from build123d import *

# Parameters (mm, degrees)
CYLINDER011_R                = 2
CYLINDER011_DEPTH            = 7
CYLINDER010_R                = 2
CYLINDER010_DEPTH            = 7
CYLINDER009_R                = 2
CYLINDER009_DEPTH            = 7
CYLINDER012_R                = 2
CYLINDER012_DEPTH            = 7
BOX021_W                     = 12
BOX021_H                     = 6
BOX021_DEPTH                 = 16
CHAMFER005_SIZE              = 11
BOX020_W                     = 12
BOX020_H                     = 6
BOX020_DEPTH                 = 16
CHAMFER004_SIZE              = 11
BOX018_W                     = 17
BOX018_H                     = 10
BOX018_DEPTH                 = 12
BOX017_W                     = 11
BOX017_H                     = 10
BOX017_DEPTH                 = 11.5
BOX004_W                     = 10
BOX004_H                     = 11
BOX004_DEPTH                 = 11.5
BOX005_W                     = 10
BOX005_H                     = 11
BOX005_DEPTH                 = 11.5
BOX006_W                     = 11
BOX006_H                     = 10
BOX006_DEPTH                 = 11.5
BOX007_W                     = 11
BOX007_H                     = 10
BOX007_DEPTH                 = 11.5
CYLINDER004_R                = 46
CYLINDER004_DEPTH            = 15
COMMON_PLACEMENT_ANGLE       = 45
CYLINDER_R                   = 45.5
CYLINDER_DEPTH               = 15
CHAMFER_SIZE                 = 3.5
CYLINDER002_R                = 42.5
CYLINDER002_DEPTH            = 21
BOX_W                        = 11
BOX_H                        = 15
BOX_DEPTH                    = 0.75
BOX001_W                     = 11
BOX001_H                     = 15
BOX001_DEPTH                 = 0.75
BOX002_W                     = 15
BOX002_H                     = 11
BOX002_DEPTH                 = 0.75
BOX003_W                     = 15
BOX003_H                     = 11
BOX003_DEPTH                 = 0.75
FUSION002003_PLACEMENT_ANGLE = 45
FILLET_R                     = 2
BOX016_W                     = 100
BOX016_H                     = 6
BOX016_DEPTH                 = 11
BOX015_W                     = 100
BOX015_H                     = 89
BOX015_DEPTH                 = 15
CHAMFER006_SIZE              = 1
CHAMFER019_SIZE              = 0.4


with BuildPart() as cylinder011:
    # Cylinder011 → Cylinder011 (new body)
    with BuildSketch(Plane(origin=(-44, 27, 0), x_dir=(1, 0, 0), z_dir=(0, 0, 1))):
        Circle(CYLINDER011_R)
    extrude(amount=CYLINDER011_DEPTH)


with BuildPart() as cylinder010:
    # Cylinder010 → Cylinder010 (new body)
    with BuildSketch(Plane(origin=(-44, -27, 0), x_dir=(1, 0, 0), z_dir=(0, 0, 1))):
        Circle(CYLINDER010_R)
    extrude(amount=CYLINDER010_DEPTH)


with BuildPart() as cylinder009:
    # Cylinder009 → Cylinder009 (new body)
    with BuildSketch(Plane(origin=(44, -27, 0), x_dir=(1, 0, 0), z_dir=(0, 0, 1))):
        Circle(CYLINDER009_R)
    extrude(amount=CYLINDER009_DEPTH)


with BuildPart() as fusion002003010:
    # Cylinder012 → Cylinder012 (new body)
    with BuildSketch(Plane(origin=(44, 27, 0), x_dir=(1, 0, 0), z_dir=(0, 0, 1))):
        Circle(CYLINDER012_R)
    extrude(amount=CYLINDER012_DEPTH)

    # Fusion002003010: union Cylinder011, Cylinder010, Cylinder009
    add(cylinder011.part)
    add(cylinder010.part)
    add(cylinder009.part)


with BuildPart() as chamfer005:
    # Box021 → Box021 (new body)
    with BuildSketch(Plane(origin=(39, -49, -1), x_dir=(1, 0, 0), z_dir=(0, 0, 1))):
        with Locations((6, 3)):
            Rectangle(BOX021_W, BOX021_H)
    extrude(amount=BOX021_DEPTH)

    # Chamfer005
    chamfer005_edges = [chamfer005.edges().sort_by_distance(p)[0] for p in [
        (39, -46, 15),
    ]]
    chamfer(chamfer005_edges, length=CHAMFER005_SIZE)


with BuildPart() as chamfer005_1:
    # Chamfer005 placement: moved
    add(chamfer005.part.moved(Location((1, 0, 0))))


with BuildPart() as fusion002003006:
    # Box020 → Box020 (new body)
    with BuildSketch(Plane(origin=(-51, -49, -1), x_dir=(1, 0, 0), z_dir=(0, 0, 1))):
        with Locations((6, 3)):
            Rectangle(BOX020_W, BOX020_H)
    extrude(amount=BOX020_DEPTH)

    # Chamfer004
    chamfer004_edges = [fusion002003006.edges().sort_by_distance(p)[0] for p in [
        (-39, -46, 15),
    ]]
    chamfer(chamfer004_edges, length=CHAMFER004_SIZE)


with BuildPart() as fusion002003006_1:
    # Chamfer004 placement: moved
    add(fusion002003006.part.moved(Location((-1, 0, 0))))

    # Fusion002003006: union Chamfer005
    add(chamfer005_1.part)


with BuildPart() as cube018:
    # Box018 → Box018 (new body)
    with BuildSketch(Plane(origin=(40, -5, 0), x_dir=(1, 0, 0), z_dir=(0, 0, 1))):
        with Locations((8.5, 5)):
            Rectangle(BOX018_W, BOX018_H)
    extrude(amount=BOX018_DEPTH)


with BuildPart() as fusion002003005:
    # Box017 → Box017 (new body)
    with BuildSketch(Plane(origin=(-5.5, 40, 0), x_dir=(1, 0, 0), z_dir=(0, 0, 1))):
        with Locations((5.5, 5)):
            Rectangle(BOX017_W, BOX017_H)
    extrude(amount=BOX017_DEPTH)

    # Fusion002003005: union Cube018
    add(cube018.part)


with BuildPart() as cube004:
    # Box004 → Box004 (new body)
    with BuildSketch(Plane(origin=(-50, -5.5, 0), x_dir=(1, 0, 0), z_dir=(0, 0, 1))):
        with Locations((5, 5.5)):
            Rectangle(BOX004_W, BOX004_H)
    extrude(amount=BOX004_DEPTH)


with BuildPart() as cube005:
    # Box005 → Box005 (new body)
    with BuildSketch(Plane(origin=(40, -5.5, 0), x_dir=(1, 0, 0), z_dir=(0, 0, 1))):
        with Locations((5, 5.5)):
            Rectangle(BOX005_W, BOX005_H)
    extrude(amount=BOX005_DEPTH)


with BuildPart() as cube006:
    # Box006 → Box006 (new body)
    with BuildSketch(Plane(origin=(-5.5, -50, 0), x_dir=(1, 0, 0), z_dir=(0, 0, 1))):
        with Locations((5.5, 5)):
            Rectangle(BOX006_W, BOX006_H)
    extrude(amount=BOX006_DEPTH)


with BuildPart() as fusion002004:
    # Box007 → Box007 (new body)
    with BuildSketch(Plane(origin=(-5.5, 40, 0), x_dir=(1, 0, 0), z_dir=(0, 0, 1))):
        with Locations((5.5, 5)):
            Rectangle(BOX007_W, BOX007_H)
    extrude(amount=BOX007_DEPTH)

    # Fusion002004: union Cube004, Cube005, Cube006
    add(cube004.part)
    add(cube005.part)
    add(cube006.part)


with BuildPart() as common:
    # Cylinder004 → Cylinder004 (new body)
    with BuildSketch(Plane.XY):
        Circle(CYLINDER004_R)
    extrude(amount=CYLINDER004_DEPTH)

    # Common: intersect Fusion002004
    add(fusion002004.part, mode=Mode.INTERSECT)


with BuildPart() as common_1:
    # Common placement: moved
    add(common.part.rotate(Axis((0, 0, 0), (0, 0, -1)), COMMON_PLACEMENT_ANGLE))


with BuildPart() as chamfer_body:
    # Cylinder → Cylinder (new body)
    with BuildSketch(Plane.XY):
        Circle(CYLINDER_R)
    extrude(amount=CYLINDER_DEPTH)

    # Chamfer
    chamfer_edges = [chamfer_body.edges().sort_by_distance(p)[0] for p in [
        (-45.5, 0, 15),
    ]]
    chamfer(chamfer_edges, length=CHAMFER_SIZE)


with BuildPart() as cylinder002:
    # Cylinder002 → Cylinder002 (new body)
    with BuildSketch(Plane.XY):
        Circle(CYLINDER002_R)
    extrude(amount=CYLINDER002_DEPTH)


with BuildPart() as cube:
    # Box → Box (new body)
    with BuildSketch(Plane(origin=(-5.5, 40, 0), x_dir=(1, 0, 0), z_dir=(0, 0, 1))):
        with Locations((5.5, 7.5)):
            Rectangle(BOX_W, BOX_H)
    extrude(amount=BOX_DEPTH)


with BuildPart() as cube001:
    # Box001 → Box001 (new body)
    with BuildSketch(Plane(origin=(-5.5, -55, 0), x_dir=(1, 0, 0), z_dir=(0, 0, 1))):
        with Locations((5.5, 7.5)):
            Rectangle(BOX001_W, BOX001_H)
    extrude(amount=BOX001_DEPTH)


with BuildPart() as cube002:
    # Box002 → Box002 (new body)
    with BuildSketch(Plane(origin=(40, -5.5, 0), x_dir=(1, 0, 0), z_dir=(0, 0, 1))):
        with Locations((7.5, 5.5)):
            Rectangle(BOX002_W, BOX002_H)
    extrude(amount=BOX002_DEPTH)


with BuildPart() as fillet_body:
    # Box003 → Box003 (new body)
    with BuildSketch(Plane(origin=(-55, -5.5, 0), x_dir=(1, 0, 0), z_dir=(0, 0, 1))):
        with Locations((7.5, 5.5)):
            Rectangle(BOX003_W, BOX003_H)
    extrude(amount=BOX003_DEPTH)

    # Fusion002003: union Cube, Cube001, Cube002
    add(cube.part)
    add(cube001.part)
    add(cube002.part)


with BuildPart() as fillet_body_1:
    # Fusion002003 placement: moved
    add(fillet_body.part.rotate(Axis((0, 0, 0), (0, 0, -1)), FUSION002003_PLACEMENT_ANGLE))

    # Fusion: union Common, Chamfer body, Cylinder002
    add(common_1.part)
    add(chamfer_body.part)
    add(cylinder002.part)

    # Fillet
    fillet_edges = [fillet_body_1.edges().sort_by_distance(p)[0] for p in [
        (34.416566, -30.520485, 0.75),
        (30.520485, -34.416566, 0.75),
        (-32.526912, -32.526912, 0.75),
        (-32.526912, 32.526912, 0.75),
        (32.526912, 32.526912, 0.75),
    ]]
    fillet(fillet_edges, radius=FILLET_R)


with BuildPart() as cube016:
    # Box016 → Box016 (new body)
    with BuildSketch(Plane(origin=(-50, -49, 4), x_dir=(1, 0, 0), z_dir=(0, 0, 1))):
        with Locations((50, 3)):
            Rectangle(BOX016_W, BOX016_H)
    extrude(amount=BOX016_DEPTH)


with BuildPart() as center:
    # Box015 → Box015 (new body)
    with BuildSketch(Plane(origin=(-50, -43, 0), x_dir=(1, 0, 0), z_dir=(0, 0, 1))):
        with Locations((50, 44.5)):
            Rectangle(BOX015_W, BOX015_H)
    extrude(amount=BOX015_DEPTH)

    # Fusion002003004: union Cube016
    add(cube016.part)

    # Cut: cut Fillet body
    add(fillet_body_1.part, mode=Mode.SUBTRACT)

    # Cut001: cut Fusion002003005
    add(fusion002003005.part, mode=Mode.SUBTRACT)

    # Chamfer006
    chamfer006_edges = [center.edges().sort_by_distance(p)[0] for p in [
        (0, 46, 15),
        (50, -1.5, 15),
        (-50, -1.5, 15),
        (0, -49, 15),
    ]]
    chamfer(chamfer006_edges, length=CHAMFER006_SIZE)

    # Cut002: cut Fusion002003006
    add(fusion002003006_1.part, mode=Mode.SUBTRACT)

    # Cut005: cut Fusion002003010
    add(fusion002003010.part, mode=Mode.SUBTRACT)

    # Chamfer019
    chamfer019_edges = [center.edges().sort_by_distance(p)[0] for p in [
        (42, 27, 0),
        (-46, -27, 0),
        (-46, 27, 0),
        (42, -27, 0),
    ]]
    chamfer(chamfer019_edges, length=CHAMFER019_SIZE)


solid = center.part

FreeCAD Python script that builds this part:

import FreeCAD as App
import Part
import Sketcher


def edges_at(feature, points):
    """Names of the edges that pass closest to the given points."""
    edges = feature.Shape.Edges
    near = lambda p: min(range(len(edges)), key=lambda i: edges[i].distToShape(Part.Vertex(*p))[0])
    return sorted({f"Edge{near(p) + 1}" for p in points})

doc = App.newDocument("Part")
body = doc.addObject("PartDesign::Body", "Body")

# Sketch on XY plane
sketch1 = body.newObject("Sketcher::SketchObject", "Sketch")
sketch1.AttachmentSupport = (doc.getObject("XY_Plane"), [""])
sketch1.MapMode = "FlatFace"
sketch1.addGeometry(Part.Circle(App.Vector(-44, 27, 0), App.Vector(0, 0, 1), 2), False)
sketch1.addConstraint(Sketcher.Constraint("Diameter", 0, 4.0))
sketch1.addConstraint(Sketcher.Constraint("DistanceX", 0, 3, -1, 1, 44.0))
sketch1.addConstraint(Sketcher.Constraint("DistanceY", -1, 1, 0, 3, 27.0))
pad1 = body.newObject("PartDesign::Pad", "Pad")
pad1.Profile = sketch1
pad1.Length = 7
body2 = doc.addObject("PartDesign::Body", "Body001")

# Sketch on XY plane
sketch2 = body2.newObject("Sketcher::SketchObject", "Sketch001")
sketch2.AttachmentSupport = (doc.getObject("XY_Plane001"), [""])
sketch2.MapMode = "FlatFace"
sketch2.addGeometry(Part.Circle(App.Vector(-44, -27, 0), App.Vector(0, 0, 1), 2), False)
sketch2.addConstraint(Sketcher.Constraint("Diameter", 0, 4.0))
sketch2.addConstraint(Sketcher.Constraint("DistanceX", 0, 3, -1, 1, 44.0))
sketch2.addConstraint(Sketcher.Constraint("DistanceY", 0, 3, -1, 1, 27.0))
pad2 = body2.newObject("PartDesign::Pad", "Pad001")
pad2.Profile = sketch2
pad2.Length = 7
body3 = doc.addObject("PartDesign::Body", "Body002")

# Sketch on XY plane
sketch3 = body3.newObject("Sketcher::SketchObject", "Sketch002")
sketch3.AttachmentSupport = (doc.getObject("XY_Plane002"), [""])
sketch3.MapMode = "FlatFace"
sketch3.addGeometry(Part.Circle(App.Vector(44, -27, 0), App.Vector(0, 0, 1), 2), False)
sketch3.addConstraint(Sketcher.Constraint("Diameter", 0, 4.0))
sketch3.addConstraint(Sketcher.Constraint("DistanceX", -1, 1, 0, 3, 44.0))
sketch3.addConstraint(Sketcher.Constraint("DistanceY", 0, 3, -1, 1, 27.0))
pad3 = body3.newObject("PartDesign::Pad", "Pad002")
pad3.Profile = sketch3
pad3.Length = 7
body4 = doc.addObject("PartDesign::Body", "Body003")
body4.AllowCompound = True

# Sketch on XY plane
sketch4 = body4.newObject("Sketcher::SketchObject", "Sketch003")
sketch4.AttachmentSupport = (doc.getObject("XY_Plane003"), [""])
sketch4.MapMode = "FlatFace"
sketch4.addGeometry(Part.Circle(App.Vector(44, 27, 0), App.Vector(0, 0, 1), 2), False)
sketch4.addConstraint(Sketcher.Constraint("Diameter", 0, 4.0))
sketch4.addConstraint(Sketcher.Constraint("DistanceX", -1, 1, 0, 3, 44.0))
sketch4.addConstraint(Sketcher.Constraint("DistanceY", -1, 1, 0, 3, 27.0))
pad4 = body4.newObject("PartDesign::Pad", "Pad003")
pad4.Profile = sketch4
pad4.Length = 7
doc.recompute()

boolean = body4.newObject("PartDesign::Boolean", "Boolean")
boolean.Type = "Fuse"
boolean.addObjects([body])
doc.recompute()

boolean2 = body4.newObject("PartDesign::Boolean", "Boolean001")
boolean2.Type = "Fuse"
boolean2.addObjects([body2])
doc.recompute()

boolean3 = body4.newObject("PartDesign::Boolean", "Boolean002")
boolean3.Type = "Fuse"
boolean3.addObjects([body3])
body5 = doc.addObject("PartDesign::Body", "Body004")

# Sketch on XY plane
sketch5 = body5.newObject("Sketcher::SketchObject", "Sketch004")
sketch5.AttachmentSupport = (doc.getObject("XY_Plane004"), [""])
sketch5.MapMode = "FlatFace"
sketch5.AttachmentOffset = App.Placement(App.Vector(0, 0, -1), App.Rotation())
sketch5.addGeometry(Part.LineSegment(App.Vector(39, -43, 0), App.Vector(39, -49, 0)), False)
sketch5.addGeometry(Part.LineSegment(App.Vector(39, -49, 0), App.Vector(51, -49, 0)), False)
sketch5.addGeometry(Part.LineSegment(App.Vector(51, -49, 0), App.Vector(51, -43, 0)), False)
sketch5.addGeometry(Part.LineSegment(App.Vector(51, -43, 0), App.Vector(39, -43, 0)), False)
sketch5.addConstraint(Sketcher.Constraint("Coincident", 0, 2, 1, 1))
sketch5.addConstraint(Sketcher.Constraint("Coincident", 1, 2, 2, 1))
sketch5.addConstraint(Sketcher.Constraint("Coincident", 2, 2, 3, 1))
sketch5.addConstraint(Sketcher.Constraint("Coincident", 3, 2, 0, 1))
sketch5.addConstraint(Sketcher.Constraint("Vertical", 0))
sketch5.addConstraint(Sketcher.Constraint("Horizontal", 1))
sketch5.addConstraint(Sketcher.Constraint("Vertical", 2))
sketch5.addConstraint(Sketcher.Constraint("Horizontal", 3))
sketch5.addConstraint(Sketcher.Constraint("DistanceX", 1, 1, 1, 2, 12.0))
sketch5.addConstraint(Sketcher.Constraint("DistanceY", 0, 2, 0, 1, 6.0))
sketch5.addConstraint(Sketcher.Constraint("DistanceX", -1, 1, 0, 2, 39.0))
sketch5.addConstraint(Sketcher.Constraint("DistanceY", 0, 2, -1, 1, 49.0))
pad5 = body5.newObject("PartDesign::Pad", "Pad004")
pad5.Profile = sketch5
pad5.Length = 16
doc.recompute()

chamfer = body5.newObject("PartDesign::Chamfer", "Chamfer")
chamfer.Base = (pad5, edges_at(pad5, [(39, -46, 15)]))
chamfer.Size = 11
body6 = doc.addObject("PartDesign::Body", "Body005")
doc.recompute()

body5.Placement = App.Placement(App.Vector(1, 0, 0), App.Rotation(App.Vector(0, 0, 1), 0))
boolean4 = body6.newObject("PartDesign::Boolean", "Boolean003")
boolean4.Type = "Fuse"
boolean4.addObjects([body5])
body7 = doc.addObject("PartDesign::Body", "Body006")

# Sketch on XY plane
sketch6 = body7.newObject("Sketcher::SketchObject", "Sketch005")
sketch6.AttachmentSupport = (doc.getObject("XY_Plane006"), [""])
sketch6.MapMode = "FlatFace"
sketch6.AttachmentOffset = App.Placement(App.Vector(0, 0, -1), App.Rotation())
sketch6.addGeometry(Part.LineSegment(App.Vector(-51, -43, 0), App.Vector(-51, -49, 0)), False)
sketch6.addGeometry(Part.LineSegment(App.Vector(-51, -49, 0), App.Vector(-39, -49, 0)), False)
sketch6.addGeometry(Part.LineSegment(App.Vector(-39, -49, 0), App.Vector(-39, -43, 0)), False)
sketch6.addGeometry(Part.LineSegment(App.Vector(-39, -43, 0), App.Vector(-51, -43, 0)), False)
sketch6.addConstraint(Sketcher.Constraint("Coincident", 0, 2, 1, 1))
sketch6.addConstraint(Sketcher.Constraint("Coincident", 1, 2, 2, 1))
sketch6.addConstraint(Sketcher.Constraint("Coincident", 2, 2, 3, 1))
sketch6.addConstraint(Sketcher.Constraint("Coincident", 3, 2, 0, 1))
sketch6.addConstraint(Sketcher.Constraint("Vertical", 0))
sketch6.addConstraint(Sketcher.Constraint("Horizontal", 1))
sketch6.addConstraint(Sketcher.Constraint("Vertical", 2))
sketch6.addConstraint(Sketcher.Constraint("Horizontal", 3))
sketch6.addConstraint(Sketcher.Constraint("DistanceX", 1, 1, 1, 2, 12.0))
sketch6.addConstraint(Sketcher.Constraint("DistanceY", 0, 2, 0, 1, 6.0))
sketch6.addConstraint(Sketcher.Constraint("DistanceX", 0, 2, -1, 1, 51.0))
sketch6.addConstraint(Sketcher.Constraint("DistanceY", 0, 2, -1, 1, 49.0))
pad6 = body7.newObject("PartDesign::Pad", "Pad005")
pad6.Profile = sketch6
pad6.Length = 16
doc.recompute()

chamfer2 = body7.newObject("PartDesign::Chamfer", "Chamfer001")
chamfer2.Base = (pad6, edges_at(pad6, [(-39, -46, 15)]))
chamfer2.Size = 11
body8 = doc.addObject("PartDesign::Body", "Body007")
body8.AllowCompound = True
doc.recompute()

body7.Placement = App.Placement(App.Vector(-1, 0, 0), App.Rotation(App.Vector(0, 0, 1), 0))
boolean5 = body8.newObject("PartDesign::Boolean", "Boolean004")
boolean5.Type = "Fuse"
boolean5.addObjects([body7])
doc.recompute()

boolean6 = body8.newObject("PartDesign::Boolean", "Boolean005")
boolean6.Type = "Fuse"
boolean6.addObjects([body6])
body9 = doc.addObject("PartDesign::Body", "Body008")

# Sketch on XY plane
sketch7 = body9.newObject("Sketcher::SketchObject", "Sketch006")
sketch7.AttachmentSupport = (doc.getObject("XY_Plane008"), [""])
sketch7.MapMode = "FlatFace"
sketch7.addGeometry(Part.LineSegment(App.Vector(40, 5, 0), App.Vector(40, -5, 0)), False)
sketch7.addGeometry(Part.LineSegment(App.Vector(40, -5, 0), App.Vector(57, -5, 0)), False)
sketch7.addGeometry(Part.LineSegment(App.Vector(57, -5, 0), App.Vector(57, 5, 0)), False)
sketch7.addGeometry(Part.LineSegment(App.Vector(57, 5, 0), App.Vector(40, 5, 0)), False)
sketch7.addConstraint(Sketcher.Constraint("Coincident", 0, 2, 1, 1))
sketch7.addConstraint(Sketcher.Constraint("Coincident", 1, 2, 2, 1))
sketch7.addConstraint(Sketcher.Constraint("Coincident", 2, 2, 3, 1))
sketch7.addConstraint(Sketcher.Constraint("Coincident", 3, 2, 0, 1))
sketch7.addConstraint(Sketcher.Constraint("Vertical", 0))
sketch7.addConstraint(Sketcher.Constraint("Horizontal", 1))
sketch7.addConstraint(Sketcher.Constraint("Vertical", 2))
sketch7.addConstraint(Sketcher.Constraint("Horizontal", 3))
sketch7.addConstraint(Sketcher.Constraint("DistanceX", 1, 1, 1, 2, 17.0))
sketch7.addConstraint(Sketcher.Constraint("DistanceY", 0, 2, 0, 1, 10.0))
sketch7.addConstraint(Sketcher.Constraint("DistanceX", -1, 1, 0, 2, 40.0))
sketch7.addConstraint(Sketcher.Constraint("DistanceY", 0, 2, -1, 1, 5.0))
pad7 = body9.newObject("PartDesign::Pad", "Pad006")
pad7.Profile = sketch7
pad7.Length = 12
body10 = doc.addObject("PartDesign::Body", "Body009")
body10.AllowCompound = True

# Sketch on XY plane
sketch8 = body10.newObject("Sketcher::SketchObject", "Sketch007")
sketch8.AttachmentSupport = (doc.getObject("XY_Plane009"), [""])
sketch8.MapMode = "FlatFace"
sketch8.addGeometry(Part.LineSegment(App.Vector(-6, 50, 0), App.Vector(-6, 40, 0)), False)
sketch8.addGeometry(Part.LineSegment(App.Vector(-6, 40, 0), App.Vector(6, 40, 0)), False)
sketch8.addGeometry(Part.LineSegment(App.Vector(6, 40, 0), App.Vector(6, 50, 0)), False)
sketch8.addGeometry(Part.LineSegment(App.Vector(6, 50, 0), App.Vector(-6, 50, 0)), False)
sketch8.addConstraint(Sketcher.Constraint("Coincident", 0, 2, 1, 1))
sketch8.addConstraint(Sketcher.Constraint("Coincident", 1, 2, 2, 1))
sketch8.addConstraint(Sketcher.Constraint("Coincident", 2, 2, 3, 1))
sketch8.addConstraint(Sketcher.Constraint("Coincident", 3, 2, 0, 1))
sketch8.addConstraint(Sketcher.Constraint("Vertical", 0))
sketch8.addConstraint(Sketcher.Constraint("Horizontal", 1))
sketch8.addConstraint(Sketcher.Constraint("Vertical", 2))
sketch8.addConstraint(Sketcher.Constraint("Horizontal", 3))
sketch8.addConstraint(Sketcher.Constraint("DistanceX", 1, 1, 1, 2, 11.0))
sketch8.addConstraint(Sketcher.Constraint("DistanceY", 0, 2, 0, 1, 10.0))
sketch8.addConstraint(Sketcher.Constraint("DistanceY", -1, 1, 0, 2, 40.0))
sketch8.addConstraint(Sketcher.Constraint("DistanceX", 0, 2, -1, 1, 5.5))
pad8 = body10.newObject("PartDesign::Pad", "Pad007")
pad8.Profile = sketch8
pad8.Length = 11.5
doc.recompute()

boolean7 = body10.newObject("PartDesign::Boolean", "Boolean006")
boolean7.Type = "Fuse"
boolean7.addObjects([body9])
body11 = doc.addObject("PartDesign::Body", "Body010")

# Sketch on XY plane
sketch9 = body11.newObject("Sketcher::SketchObject", "Sketch008")
sketch9.AttachmentSupport = (doc.getObject("XY_Plane010"), [""])
sketch9.MapMode = "FlatFace"
sketch9.addGeometry(Part.LineSegment(App.Vector(-50, 6, 0), App.Vector(-50, -6, 0)), False)
sketch9.addGeometry(Part.LineSegment(App.Vector(-50, -6, 0), App.Vector(-40, -6, 0)), False)
sketch9.addGeometry(Part.LineSegment(App.Vector(-40, -6, 0), App.Vector(-40, 6, 0)), False)
sketch9.addGeometry(Part.LineSegment(App.Vector(-40, 6, 0), App.Vector(-50, 6, 0)), False)
sketch9.addConstraint(Sketcher.Constraint("Coincident", 0, 2, 1, 1))
sketch9.addConstraint(Sketcher.Constraint("Coincident", 1, 2, 2, 1))
sketch9.addConstraint(Sketcher.Constraint("Coincident", 2, 2, 3, 1))
sketch9.addConstraint(Sketcher.Constraint("Coincident", 3, 2, 0, 1))
sketch9.addConstraint(Sketcher.Constraint("Vertical", 0))
sketch9.addConstraint(Sketcher.Constraint("Horizontal", 1))
sketch9.addConstraint(Sketcher.Constraint("Vertical", 2))
sketch9.addConstraint(Sketcher.Constraint("Horizontal", 3))
sketch9.addConstraint(Sketcher.Constraint("DistanceX", 1, 1, 1, 2, 10.0))
sketch9.addConstraint(Sketcher.Constraint("DistanceY", 0, 2, 0, 1, 11.0))
sketch9.addConstraint(Sketcher.Constraint("DistanceX", 0, 2, -1, 1, 50.0))
sketch9.addConstraint(Sketcher.Constraint("DistanceY", 0, 2, -1, 1, 5.5))
pad9 = body11.newObject("PartDesign::Pad", "Pad008")
pad9.Profile = sketch9
pad9.Length = 11.5
body12 = doc.addObject("PartDesign::Body", "Body011")

# Sketch on XY plane
sketch10 = body12.newObject("Sketcher::SketchObject", "Sketch009")
sketch10.AttachmentSupport = (doc.getObject("XY_Plane011"), [""])
sketch10.MapMode = "FlatFace"
sketch10.addGeometry(Part.LineSegment(App.Vector(40, 6, 0), App.Vector(40, -6, 0)), False)
sketch10.addGeometry(Part.LineSegment(App.Vector(40, -6, 0), App.Vector(50, -6, 0)), False)
sketch10.addGeometry(Part.LineSegment(App.Vector(50, -6, 0), App.Vector(50, 6, 0)), False)
sketch10.addGeometry(Part.LineSegment(App.Vector(50, 6, 0), App.Vector(40, 6, 0)), False)
sketch10.addConstraint(Sketcher.Constraint("Coincident", 0, 2, 1, 1))
sketch10.addConstraint(Sketcher.Constraint("Coincident", 1, 2, 2, 1))
sketch10.addConstraint(Sketcher.Constraint("Coincident", 2, 2, 3, 1))
sketch10.addConstraint(Sketcher.Constraint("Coincident", 3, 2, 0, 1))
sketch10.addConstraint(Sketcher.Constraint("Vertical", 0))
sketch10.addConstraint(Sketcher.Constraint("Horizontal", 1))
sketch10.addConstraint(Sketcher.Constraint("Vertical", 2))
sketch10.addConstraint(Sketcher.Constraint("Horizontal", 3))
sketch10.addConstraint(Sketcher.Constraint("DistanceX", 1, 1, 1, 2, 10.0))
sketch10.addConstraint(Sketcher.Constraint("DistanceY", 0, 2, 0, 1, 11.0))
sketch10.addConstraint(Sketcher.Constraint("DistanceX", -1, 1, 0, 2, 40.0))
sketch10.addConstraint(Sketcher.Constraint("DistanceY", 0, 2, -1, 1, 5.5))
pad10 = body12.newObject("PartDesign::Pad", "Pad009")
pad10.Profile = sketch10
pad10.Length = 11.5
body13 = doc.addObject("PartDesign::Body", "Body012")

# Sketch on XY plane
sketch11 = body13.newObject("Sketcher::SketchObject", "Sketch010")
sketch11.AttachmentSupport = (doc.getObject("XY_Plane012"), [""])
sketch11.MapMode = "FlatFace"
sketch11.addGeometry(Part.LineSegment(App.Vector(-6, -40, 0), App.Vector(-6, -50, 0)), False)
sketch11.addGeometry(Part.LineSegment(App.Vector(-6, -50, 0), App.Vector(6, -50, 0)), False)
sketch11.addGeometry(Part.LineSegment(App.Vector(6, -50, 0), App.Vector(6, -40, 0)), False)
sketch11.addGeometry(Part.LineSegment(App.Vector(6, -40, 0), App.Vector(-6, -40, 0)), False)
sketch11.addConstraint(Sketcher.Constraint("Coincident", 0, 2, 1, 1))
sketch11.addConstraint(Sketcher.Constraint("Coincident", 1, 2, 2, 1))
sketch11.addConstraint(Sketcher.Constraint("Coincident", 2, 2, 3, 1))
sketch11.addConstraint(Sketcher.Constraint("Coincident", 3, 2, 0, 1))
sketch11.addConstraint(Sketcher.Constraint("Vertical", 0))
sketch11.addConstraint(Sketcher.Constraint("Horizontal", 1))
sketch11.addConstraint(Sketcher.Constraint("Vertical", 2))
sketch11.addConstraint(Sketcher.Constraint("Horizontal", 3))
sketch11.addConstraint(Sketcher.Constraint("DistanceX", 1, 1, 1, 2, 11.0))
sketch11.addConstraint(Sketcher.Constraint("DistanceY", 0, 2, 0, 1, 10.0))
sketch11.addConstraint(Sketcher.Constraint("DistanceY", 0, 2, -1, 1, 50.0))
sketch11.addConstraint(Sketcher.Constraint("DistanceX", 0, 2, -1, 1, 5.5))
pad11 = body13.newObject("PartDesign::Pad", "Pad010")
pad11.Profile = sketch11
pad11.Length = 11.5
body14 = doc.addObject("PartDesign::Body", "Body013")
body14.AllowCompound = True

# Sketch on XY plane
sketch12 = body14.newObject("Sketcher::SketchObject", "Sketch011")
sketch12.AttachmentSupport = (doc.getObject("XY_Plane013"), [""])
sketch12.MapMode = "FlatFace"
sketch12.addGeometry(Part.LineSegment(App.Vector(-6, 50, 0), App.Vector(-6, 40, 0)), False)
sketch12.addGeometry(Part.LineSegment(App.Vector(-6, 40, 0), App.Vector(6, 40, 0)), False)
sketch12.addGeometry(Part.LineSegment(App.Vector(6, 40, 0), App.Vector(6, 50, 0)), False)
sketch12.addGeometry(Part.LineSegment(App.Vector(6, 50, 0), App.Vector(-6, 50, 0)), False)
sketch12.addConstraint(Sketcher.Constraint("Coincident", 0, 2, 1, 1))
sketch12.addConstraint(Sketcher.Constraint("Coincident", 1, 2, 2, 1))
sketch12.addConstraint(Sketcher.Constraint("Coincident", 2, 2, 3, 1))
sketch12.addConstraint(Sketcher.Constraint("Coincident", 3, 2, 0, 1))
sketch12.addConstraint(Sketcher.Constraint("Vertical", 0))
sketch12.addConstraint(Sketcher.Constraint("Horizontal", 1))
sketch12.addConstraint(Sketcher.Constraint("Vertical", 2))
sketch12.addConstraint(Sketcher.Constraint("Horizontal", 3))
sketch12.addConstraint(Sketcher.Constraint("DistanceX", 1, 1, 1, 2, 11.0))
sketch12.addConstraint(Sketcher.Constraint("DistanceY", 0, 2, 0, 1, 10.0))
sketch12.addConstraint(Sketcher.Constraint("DistanceY", -1, 1, 0, 2, 40.0))
sketch12.addConstraint(Sketcher.Constraint("DistanceX", 0, 2, -1, 1, 5.5))
pad12 = body14.newObject("PartDesign::Pad", "Pad011")
pad12.Profile = sketch12
pad12.Length = 11.5
doc.recompute()

boolean8 = body14.newObject("PartDesign::Boolean", "Boolean007")
boolean8.Type = "Fuse"
boolean8.addObjects([body11])
doc.recompute()

boolean9 = body14.newObject("PartDesign::Boolean", "Boolean008")
boolean9.Type = "Fuse"
boolean9.addObjects([body12])
doc.recompute()

boolean10 = body14.newObject("PartDesign::Boolean", "Boolean009")
boolean10.Type = "Fuse"
boolean10.addObjects([body13])
body15 = doc.addObject("PartDesign::Body", "Body014")
body15.AllowCompound = True

# Sketch on XY plane
sketch13 = body15.newObject("Sketcher::SketchObject", "Sketch012")
sketch13.AttachmentSupport = (doc.getObject("XY_Plane014"), [""])
sketch13.MapMode = "FlatFace"
sketch13.addGeometry(Part.Circle(App.Vector(0, 0, 0), App.Vector(0, 0, 1), 46), False)
sketch13.addConstraint(Sketcher.Constraint("Coincident", 0, 3, -1, 1))
sketch13.addConstraint(Sketcher.Constraint("Diameter", 0, 92.0))
pad13 = body15.newObject("PartDesign::Pad", "Pad012")
pad13.Profile = sketch13
pad13.Length = 15
doc.recompute()

boolean11 = body15.newObject("PartDesign::Boolean", "Boolean010")
boolean11.Type = "Common"
boolean11.addObjects([body14])
body16 = doc.addObject("PartDesign::Body", "Body015")
body16.AllowCompound = True
doc.recompute()

body15.Placement = App.Placement(App.Vector(0, 0, 0), App.Rotation(App.Vector(0, 0, -1), 45))
boolean12 = body16.newObject("PartDesign::Boolean", "Boolean011")
boolean12.Type = "Fuse"
boolean12.addObjects([body15])
body17 = doc.addObject("PartDesign::Body", "Body016")

# Sketch on XY plane
sketch14 = body17.newObject("Sketcher::SketchObject", "Sketch013")
sketch14.AttachmentSupport = (doc.getObject("XY_Plane016"), [""])
sketch14.MapMode = "FlatFace"
sketch14.addGeometry(Part.Circle(App.Vector(0, 0, 0), App.Vector(0, 0, 1), 46), False)
sketch14.addConstraint(Sketcher.Constraint("Coincident", 0, 3, -1, 1))
sketch14.addConstraint(Sketcher.Constraint("Diameter", 0, 91.0))
pad14 = body17.newObject("PartDesign::Pad", "Pad013")
pad14.Profile = sketch14
pad14.Length = 15
doc.recompute()

chamfer3 = body17.newObject("PartDesign::Chamfer", "Chamfer002")
chamfer3.Base = (pad14, edges_at(pad14, [(-45.5, 0, 15)]))
chamfer3.Size = 3.5
body18 = doc.addObject("PartDesign::Body", "Body017")

# Sketch on XY plane
sketch15 = body18.newObject("Sketcher::SketchObject", "Sketch014")
sketch15.AttachmentSupport = (doc.getObject("XY_Plane017"), [""])
sketch15.MapMode = "FlatFace"
sketch15.addGeometry(Part.Circle(App.Vector(0, 0, 0), App.Vector(0, 0, 1), 42), False)
sketch15.addConstraint(Sketcher.Constraint("Coincident", 0, 3, -1, 1))
sketch15.addConstraint(Sketcher.Constraint("Diameter", 0, 85.0))
pad15 = body18.newObject("PartDesign::Pad", "Pad014")
pad15.Profile = sketch15
pad15.Length = 21
body19 = doc.addObject("PartDesign::Body", "Body018")

# Sketch on XY plane
sketch16 = body19.newObject("Sketcher::SketchObject", "Sketch015")
sketch16.AttachmentSupport = (doc.getObject("XY_Plane018"), [""])
sketch16.MapMode = "FlatFace"
sketch16.addGeometry(Part.LineSegment(App.Vector(-6, 55, 0), App.Vector(-6, 40, 0)), False)
sketch16.addGeometry(Part.LineSegment(App.Vector(-6, 40, 0), App.Vector(6, 40, 0)), False)
sketch16.addGeometry(Part.LineSegment(App.Vector(6, 40, 0), App.Vector(6, 55, 0)), False)
sketch16.addGeometry(Part.LineSegment(App.Vector(6, 55, 0), App.Vector(-6, 55, 0)), False)
sketch16.addConstraint(Sketcher.Constraint("Coincident", 0, 2, 1, 1))
sketch16.addConstraint(Sketcher.Constraint("Coincident", 1, 2, 2, 1))
sketch16.addConstraint(Sketcher.Constraint("Coincident", 2, 2, 3, 1))
sketch16.addConstraint(Sketcher.Constraint("Coincident", 3, 2, 0, 1))
sketch16.addConstraint(Sketcher.Constraint("Vertical", 0))
sketch16.addConstraint(Sketcher.Constraint("Horizontal", 1))
sketch16.addConstraint(Sketcher.Constraint("Vertical", 2))
sketch16.addConstraint(Sketcher.Constraint("Horizontal", 3))
sketch16.addConstraint(Sketcher.Constraint("DistanceX", 1, 1, 1, 2, 11.0))
sketch16.addConstraint(Sketcher.Constraint("DistanceY", 0, 2, 0, 1, 15.0))
sketch16.addConstraint(Sketcher.Constraint("DistanceY", -1, 1, 0, 2, 40.0))
sketch16.addConstraint(Sketcher.Constraint("DistanceX", 0, 2, -1, 1, 5.5))
pad16 = body19.newObject("PartDesign::Pad", "Pad015")
pad16.Profile = sketch16
pad16.Length = 0.75
body20 = doc.addObject("PartDesign::Body", "Body019")

# Sketch on XY plane
sketch17 = body20.newObject("Sketcher::SketchObject", "Sketch016")
sketch17.AttachmentSupport = (doc.getObject("XY_Plane019"), [""])
sketch17.MapMode = "FlatFace"
sketch17.addGeometry(Part.LineSegment(App.Vector(-6, -40, 0), App.Vector(-6, -55, 0)), False)
sketch17.addGeometry(Part.LineSegment(App.Vector(-6, -55, 0), App.Vector(6, -55, 0)), False)
sketch17.addGeometry(Part.LineSegment(App.Vector(6, -55, 0), App.Vector(6, -40, 0)), False)
sketch17.addGeometry(Part.LineSegment(App.Vector(6, -40, 0), App.Vector(-6, -40, 0)), False)
sketch17.addConstraint(Sketcher.Constraint("Coincident", 0, 2, 1, 1))
sketch17.addConstraint(Sketcher.Constraint("Coincident", 1, 2, 2, 1))
sketch17.addConstraint(Sketcher.Constraint("Coincident", 2, 2, 3, 1))
sketch17.addConstraint(Sketcher.Constraint("Coincident", 3, 2, 0, 1))
sketch17.addConstraint(Sketcher.Constraint("Vertical", 0))
sketch17.addConstraint(Sketcher.Constraint("Horizontal", 1))
sketch17.addConstraint(Sketcher.Constraint("Vertical", 2))
sketch17.addConstraint(Sketcher.Constraint("Horizontal", 3))
sketch17.addConstraint(Sketcher.Constraint("DistanceX", 1, 1, 1, 2, 11.0))
sketch17.addConstraint(Sketcher.Constraint("DistanceY", 0, 2, 0, 1, 15.0))
sketch17.addConstraint(Sketcher.Constraint("DistanceY", 0, 2, -1, 1, 55.0))
sketch17.addConstraint(Sketcher.Constraint("DistanceX", 0, 2, -1, 1, 5.5))
pad17 = body20.newObject("PartDesign::Pad", "Pad016")
pad17.Profile = sketch17
pad17.Length = 0.75
body21 = doc.addObject("PartDesign::Body", "Body020")

# Sketch on XY plane
sketch18 = body21.newObject("Sketcher::SketchObject", "Sketch017")
sketch18.AttachmentSupport = (doc.getObject("XY_Plane020"), [""])
sketch18.MapMode = "FlatFace"
sketch18.addGeometry(Part.LineSegment(App.Vector(40, 6, 0), App.Vector(40, -6, 0)), False)
sketch18.addGeometry(Part.LineSegment(App.Vector(40, -6, 0), App.Vector(55, -6, 0)), False)
sketch18.addGeometry(Part.LineSegment(App.Vector(55, -6, 0), App.Vector(55, 6, 0)), False)
sketch18.addGeometry(Part.LineSegment(App.Vector(55, 6, 0), App.Vector(40, 6, 0)), False)
sketch18.addConstraint(Sketcher.Constraint("Coincident", 0, 2, 1, 1))
sketch18.addConstraint(Sketcher.Constraint("Coincident", 1, 2, 2, 1))
sketch18.addConstraint(Sketcher.Constraint("Coincident", 2, 2, 3, 1))
sketch18.addConstraint(Sketcher.Constraint("Coincident", 3, 2, 0, 1))
sketch18.addConstraint(Sketcher.Constraint("Vertical", 0))
sketch18.addConstraint(Sketcher.Constraint("Horizontal", 1))
sketch18.addConstraint(Sketcher.Constraint("Vertical", 2))
sketch18.addConstraint(Sketcher.Constraint("Horizontal", 3))
sketch18.addConstraint(Sketcher.Constraint("DistanceX", 1, 1, 1, 2, 15.0))
sketch18.addConstraint(Sketcher.Constraint("DistanceY", 0, 2, 0, 1, 11.0))
sketch18.addConstraint(Sketcher.Constraint("DistanceX", -1, 1, 0, 2, 40.0))
sketch18.addConstraint(Sketcher.Constraint("DistanceY", 0, 2, -1, 1, 5.5))
pad18 = body21.newObject("PartDesign::Pad", "Pad017")
pad18.Profile = sketch18
pad18.Length = 0.75
body22 = doc.addObject("PartDesign::Body", "Body021")
body22.AllowCompound = True

# Sketch on XY plane
sketch19 = body22.newObject("Sketcher::SketchObject", "Sketch018")
sketch19.AttachmentSupport = (doc.getObject("XY_Plane021"), [""])
sketch19.MapMode = "FlatFace"
sketch19.addGeometry(Part.LineSegment(App.Vector(-55, 6, 0), App.Vector(-55, -6, 0)), False)
sketch19.addGeometry(Part.LineSegment(App.Vector(-55, -6, 0), App.Vector(-40, -6, 0)), False)
sketch19.addGeometry(Part.LineSegment(App.Vector(-40, -6, 0), App.Vector(-40, 6, 0)), False)
sketch19.addGeometry(Part.LineSegment(App.Vector(-40, 6, 0), App.Vector(-55, 6, 0)), False)
sketch19.addConstraint(Sketcher.Constraint("Coincident", 0, 2, 1, 1))
sketch19.addConstraint(Sketcher.Constraint("Coincident", 1, 2, 2, 1))
sketch19.addConstraint(Sketcher.Constraint("Coincident", 2, 2, 3, 1))
sketch19.addConstraint(Sketcher.Constraint("Coincident", 3, 2, 0, 1))
sketch19.addConstraint(Sketcher.Constraint("Vertical", 0))
sketch19.addConstraint(Sketcher.Constraint("Horizontal", 1))
sketch19.addConstraint(Sketcher.Constraint("Vertical", 2))
sketch19.addConstraint(Sketcher.Constraint("Horizontal", 3))
sketch19.addConstraint(Sketcher.Constraint("DistanceX", 1, 1, 1, 2, 15.0))
sketch19.addConstraint(Sketcher.Constraint("DistanceY", 0, 2, 0, 1, 11.0))
sketch19.addConstraint(Sketcher.Constraint("DistanceX", 0, 2, -1, 1, 55.0))
sketch19.addConstraint(Sketcher.Constraint("DistanceY", 0, 2, -1, 1, 5.5))
pad19 = body22.newObject("PartDesign::Pad", "Pad018")
pad19.Profile = sketch19
pad19.Length = 0.75
doc.recompute()

boolean13 = body22.newObject("PartDesign::Boolean", "Boolean012")
boolean13.Type = "Fuse"
boolean13.addObjects([body19])
doc.recompute()

boolean14 = body22.newObject("PartDesign::Boolean", "Boolean013")
boolean14.Type = "Fuse"
boolean14.addObjects([body20])
doc.recompute()

boolean15 = body22.newObject("PartDesign::Boolean", "Boolean014")
boolean15.Type = "Fuse"
boolean15.addObjects([body21])
body23 = doc.addObject("PartDesign::Body", "Body022")
body23.AllowCompound = True
doc.recompute()

body22.Placement = App.Placement(App.Vector(0, 0, 0), App.Rotation(App.Vector(0, 0, -1), 45))
boolean16 = body23.newObject("PartDesign::Boolean", "Boolean015")
boolean16.Type = "Fuse"
boolean16.addObjects([body22])
doc.recompute()

boolean17 = body23.newObject("PartDesign::Boolean", "Boolean016")
boolean17.Type = "Fuse"
boolean17.addObjects([body16])
doc.recompute()

boolean18 = body23.newObject("PartDesign::Boolean", "Boolean017")
boolean18.Type = "Fuse"
boolean18.addObjects([body17])
doc.recompute()

boolean19 = body23.newObject("PartDesign::Boolean", "Boolean018")
boolean19.Type = "Fuse"
boolean19.addObjects([body18])
doc.recompute()

fillet = body23.newObject("PartDesign::Fillet", "Fillet")
fillet.Base = (boolean19, edges_at(boolean19, [
    (32.527, -32.527, 0.75),
    (32.527, -32.527, 0.75),
    (-32.527, -32.527, 0.75),
    (-32.527, 32.527, 0.75),
    (32.527, 32.527, 0.75),
]))
fillet.Radius = 2
body24 = doc.addObject("PartDesign::Body", "Body023")

# Sketch on XY plane
sketch20 = body24.newObject("Sketcher::SketchObject", "Sketch019")
sketch20.AttachmentSupport = (doc.getObject("XY_Plane023"), [""])
sketch20.MapMode = "FlatFace"
sketch20.AttachmentOffset = App.Placement(App.Vector(0, 0, 4), App.Rotation())
sketch20.addGeometry(Part.LineSegment(App.Vector(-50, -43, 0), App.Vector(-50, -49, 0)), False)
sketch20.addGeometry(Part.LineSegment(App.Vector(-50, -49, 0), App.Vector(50, -49, 0)), False)
sketch20.addGeometry(Part.LineSegment(App.Vector(50, -49, 0), App.Vector(50, -43, 0)), False)
sketch20.addGeometry(Part.LineSegment(App.Vector(50, -43, 0), App.Vector(-50, -43, 0)), False)
sketch20.addConstraint(Sketcher.Constraint("Coincident", 0, 2, 1, 1))
sketch20.addConstraint(Sketcher.Constraint("Coincident", 1, 2, 2, 1))
sketch20.addConstraint(Sketcher.Constraint("Coincident", 2, 2, 3, 1))
sketch20.addConstraint(Sketcher.Constraint("Coincident", 3, 2, 0, 1))
sketch20.addConstraint(Sketcher.Constraint("Vertical", 0))
sketch20.addConstraint(Sketcher.Constraint("Horizontal", 1))
sketch20.addConstraint(Sketcher.Constraint("Vertical", 2))
sketch20.addConstraint(Sketcher.Constraint("Horizontal", 3))
sketch20.addConstraint(Sketcher.Constraint("DistanceX", 1, 1, 1, 2, 100.0))
sketch20.addConstraint(Sketcher.Constraint("DistanceY", 0, 2, 0, 1, 6.0))
sketch20.addConstraint(Sketcher.Constraint("DistanceX", 0, 2, -1, 1, 50.0))
sketch20.addConstraint(Sketcher.Constraint("DistanceY", 0, 2, -1, 1, 49.0))
pad20 = body24.newObject("PartDesign::Pad", "Pad019")
pad20.Profile = sketch20
pad20.Length = 11
body25 = doc.addObject("PartDesign::Body", "Body024")

# Sketch on XY plane
sketch21 = body25.newObject("Sketcher::SketchObject", "Sketch020")
sketch21.AttachmentSupport = (doc.getObject("XY_Plane024"), [""])
sketch21.MapMode = "FlatFace"
sketch21.addGeometry(Part.LineSegment(App.Vector(-50, 46, 0), App.Vector(-50, -43, 0)), False)
sketch21.addGeometry(Part.LineSegment(App.Vector(-50, -43, 0), App.Vector(50, -43, 0)), False)
sketch21.addGeometry(Part.LineSegment(App.Vector(50, -43, 0), App.Vector(50, 46, 0)), False)
sketch21.addGeometry(Part.LineSegment(App.Vector(50, 46, 0), App.Vector(-50, 46, 0)), False)
sketch21.addConstraint(Sketcher.Constraint("Coincident", 0, 2, 1, 1))
sketch21.addConstraint(Sketcher.Constraint("Coincident", 1, 2, 2, 1))
sketch21.addConstraint(Sketcher.Constraint("Coincident", 2, 2, 3, 1))
sketch21.addConstraint(Sketcher.Constraint("Coincident", 3, 2, 0, 1))
sketch21.addConstraint(Sketcher.Constraint("Vertical", 0))
sketch21.addConstraint(Sketcher.Constraint("Horizontal", 1))
sketch21.addConstraint(Sketcher.Constraint("Vertical", 2))
sketch21.addConstraint(Sketcher.Constraint("Horizontal", 3))
sketch21.addConstraint(Sketcher.Constraint("DistanceX", 1, 1, 1, 2, 100.0))
sketch21.addConstraint(Sketcher.Constraint("DistanceY", 0, 2, 0, 1, 89.0))
sketch21.addConstraint(Sketcher.Constraint("DistanceX", 0, 2, -1, 1, 50.0))
sketch21.addConstraint(Sketcher.Constraint("DistanceY", 0, 2, -1, 1, 43.0))
pad21 = body25.newObject("PartDesign::Pad", "Pad020")
pad21.Profile = sketch21
pad21.Length = 15
doc.recompute()

boolean20 = body25.newObject("PartDesign::Boolean", "Boolean019")
boolean20.Type = "Fuse"
boolean20.addObjects([body24])
doc.recompute()

boolean21 = body25.newObject("PartDesign::Boolean", "Boolean020")
boolean21.Type = "Cut"
boolean21.addObjects([body23])
doc.recompute()

boolean22 = body25.newObject("PartDesign::Boolean", "Boolean021")
boolean22.Type = "Cut"
boolean22.addObjects([body10])
doc.recompute()

chamfer4 = body25.newObject("PartDesign::Chamfer", "Chamfer003")
chamfer4.Base = (boolean22, edges_at(boolean22, [
    (0, 46, 15),
    (50, -1.5, 15),
    (-50, -1.5, 15),
    (0, -49, 15),
]))
chamfer4.Size = 1
doc.recompute()

boolean23 = body25.newObject("PartDesign::Boolean", "Boolean022")
boolean23.Type = "Cut"
boolean23.addObjects([body8])
doc.recompute()

boolean24 = body25.newObject("PartDesign::Boolean", "Boolean023")
boolean24.Type = "Cut"
boolean24.addObjects([body4])
doc.recompute()

chamfer5 = body25.newObject("PartDesign::Chamfer", "Chamfer004")
chamfer5.Base = (boolean24, edges_at(boolean24, [
    (42, 27, 0),
    (-46, -27, 0),
    (-46, 27, 0),
    (42, -27, 0),
]))
chamfer5.Size = 0.4

doc.recompute()
